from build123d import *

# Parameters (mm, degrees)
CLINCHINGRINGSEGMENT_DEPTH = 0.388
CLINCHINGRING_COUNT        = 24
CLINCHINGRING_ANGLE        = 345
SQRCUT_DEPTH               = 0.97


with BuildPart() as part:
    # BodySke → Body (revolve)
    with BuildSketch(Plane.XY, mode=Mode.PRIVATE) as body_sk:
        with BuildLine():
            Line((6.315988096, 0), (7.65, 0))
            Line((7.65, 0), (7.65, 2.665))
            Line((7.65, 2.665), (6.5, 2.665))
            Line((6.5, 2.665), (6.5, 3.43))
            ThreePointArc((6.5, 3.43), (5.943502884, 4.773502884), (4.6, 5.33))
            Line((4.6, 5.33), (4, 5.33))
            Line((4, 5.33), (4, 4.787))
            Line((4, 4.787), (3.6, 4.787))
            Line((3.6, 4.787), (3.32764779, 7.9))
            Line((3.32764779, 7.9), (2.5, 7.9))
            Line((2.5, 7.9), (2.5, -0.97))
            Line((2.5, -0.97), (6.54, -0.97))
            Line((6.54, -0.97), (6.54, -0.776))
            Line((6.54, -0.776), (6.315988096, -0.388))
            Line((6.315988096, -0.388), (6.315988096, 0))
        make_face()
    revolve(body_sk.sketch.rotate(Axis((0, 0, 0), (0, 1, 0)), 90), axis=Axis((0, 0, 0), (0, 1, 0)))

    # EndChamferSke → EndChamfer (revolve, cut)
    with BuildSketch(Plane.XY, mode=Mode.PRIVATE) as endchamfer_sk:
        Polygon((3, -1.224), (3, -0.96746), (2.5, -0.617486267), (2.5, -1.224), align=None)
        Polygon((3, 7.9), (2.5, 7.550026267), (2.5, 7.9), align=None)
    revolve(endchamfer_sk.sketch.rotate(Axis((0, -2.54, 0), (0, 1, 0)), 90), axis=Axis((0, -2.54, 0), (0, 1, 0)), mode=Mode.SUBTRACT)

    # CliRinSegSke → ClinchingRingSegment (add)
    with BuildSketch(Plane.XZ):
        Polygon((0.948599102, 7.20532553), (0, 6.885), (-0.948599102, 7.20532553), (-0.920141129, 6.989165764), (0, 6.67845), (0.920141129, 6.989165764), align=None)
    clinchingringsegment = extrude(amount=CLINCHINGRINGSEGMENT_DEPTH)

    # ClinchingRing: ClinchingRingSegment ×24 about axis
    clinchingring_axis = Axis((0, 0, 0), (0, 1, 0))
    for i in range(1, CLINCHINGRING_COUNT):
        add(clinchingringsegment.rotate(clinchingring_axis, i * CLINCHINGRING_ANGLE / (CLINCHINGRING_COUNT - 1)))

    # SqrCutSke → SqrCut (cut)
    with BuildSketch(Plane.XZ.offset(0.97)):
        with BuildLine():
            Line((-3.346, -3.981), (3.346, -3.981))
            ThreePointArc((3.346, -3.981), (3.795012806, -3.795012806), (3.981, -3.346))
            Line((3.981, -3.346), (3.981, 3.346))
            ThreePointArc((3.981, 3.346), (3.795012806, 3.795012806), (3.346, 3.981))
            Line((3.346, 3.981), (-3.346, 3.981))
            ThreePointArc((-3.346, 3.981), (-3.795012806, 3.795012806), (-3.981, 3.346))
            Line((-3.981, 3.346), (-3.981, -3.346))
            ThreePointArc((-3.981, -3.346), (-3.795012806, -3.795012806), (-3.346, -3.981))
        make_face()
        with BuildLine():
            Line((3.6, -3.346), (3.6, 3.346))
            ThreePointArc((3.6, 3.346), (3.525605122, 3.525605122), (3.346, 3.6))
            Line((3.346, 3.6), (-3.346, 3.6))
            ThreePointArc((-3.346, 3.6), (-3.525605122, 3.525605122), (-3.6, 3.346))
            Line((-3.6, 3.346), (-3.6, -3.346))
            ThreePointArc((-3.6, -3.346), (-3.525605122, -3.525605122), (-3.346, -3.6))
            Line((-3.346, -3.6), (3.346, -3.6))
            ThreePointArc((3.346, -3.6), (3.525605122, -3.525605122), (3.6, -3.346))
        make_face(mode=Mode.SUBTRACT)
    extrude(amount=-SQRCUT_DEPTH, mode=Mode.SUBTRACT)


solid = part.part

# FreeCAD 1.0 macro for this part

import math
import FreeCAD as App
import Part
import Sketcher

V = App.Vector
Q = App.Units.Quantity

doc = App.newDocument("Part")
params = doc.addObject("Spreadsheet::Sheet", "Params")
for row, (alias, value) in enumerate([
    ("sketch1_radius", "1.9 mm"),
    ("sketch1_width", "0.6 mm"),
    ("sketch1_width2", "0.4 mm"),
    ("sketch1_width3", "1.15 mm"),
    ("sketch1_width4", "4.04 mm"),
    ("revolution_angle", "360 deg"),
    ("sketch2_width", "0.5 mm"),
    ("groove_angle", "360 deg"),
    ("pad1_length", "0.388 mm"),
    ("pocket1_length", "0.97 mm"),
], start=1):
    params.set(f"A{row}", alias)
    params.set(f"B{row}", "=" + value)
    params.setAlias(f"B{row}", alias)

body = doc.addObject("PartDesign::Body", "Body")

sketch1 = body.newObject("Sketcher::SketchObject", "Sketch")
sketch1.AttachmentSupport = (doc.getObject("XY_Plane"), [""])
sketch1.MapMode = "FlatFace"
sketch1.addGeometry(Part.LineSegment(V(6.32, 0, 0), V(7.65, 0, 0)), False)
sketch1.addGeometry(Part.LineSegment(V(7.65, 0, 0), V(7.65, 2.67, 0)), False)
sketch1.addGeometry(Part.LineSegment(V(7.65, 2.67, 0), V(6.5, 2.67, 0)), False)
sketch1.addGeometry(Part.LineSegment(V(6.5, 2.67, 0), V(6.5, 3.43, 0)), False)
sketch1.addGeometry(Part.ArcOfCircle(Part.Circle(V(4.6, 3.43, 0), V(0, 0, 1), 1.9), math.radians(0), math.radians(90)), False)
sketch1.addGeometry(Part.LineSegment(V(4.6, 5.33, 0), V(4, 5.33, 0)), False)
sketch1.addGeometry(Part.LineSegment(V(4, 5.33, 0), V(4, 4.79, 0)), False)
sketch1.addGeometry(Part.LineSegment(V(4, 4.79, 0), V(3.6, 4.79, 0)), False)
sketch1.addGeometry(Part.LineSegment(V(3.6, 4.79, 0), V(3.33, 7.9, 0)), False)
sketch1.addGeometry(Part.LineSegment(V(3.33, 7.9, 0), V(2.5, 7.9, 0)), False)
sketch1.addGeometry(Part.LineSegment(V(2.5, 7.9, 0), V(2.5, -0.97, 0)), False)
sketch1.addGeometry(Part.LineSegment(V(2.5, -0.97, 0), V(6.54, -0.97, 0)), False)
sketch1.addGeometry(Part.LineSegment(V(6.54, -0.97, 0), V(6.54, -0.78, 0)), False)
sketch1.addGeometry(Part.LineSegment(V(6.54, -0.78, 0), V(6.32, -0.39, 0)), False)
sketch1.addGeometry(Part.LineSegment(V(6.32, -0.39, 0), V(6.32, 0, 0)), False)
sketch1.addConstraint(Sketcher.Constraint("Coincident", 0, 2, 1, 1))
sketch1.addConstraint(Sketcher.Constraint("Coincident", 1, 2, 2, 1))
sketch1.addConstraint(Sketcher.Constraint("Coincident", 2, 2, 3, 1))
sketch1.addConstraint(Sketcher.Constraint("Tangent", 3, 2, 4, 1))
sketch1.addConstraint(Sketcher.Constraint("Tangent", 4, 2, 5, 1))
sketch1.addConstraint(Sketcher.Constraint("Coincident", 5, 2, 6, 1))
sketch1.addConstraint(Sketcher.Constraint("Coincident", 6, 2, 7, 1))
sketch1.addConstraint(Sketcher.Constraint("Coincident", 7, 2, 8, 1))
sketch1.addConstraint(Sketcher.Constraint("Coincident", 8, 2, 9, 1))
sketch1.addConstraint(Sketcher.Constraint("Coincident", 9, 2, 10, 1))
sketch1.addConstraint(Sketcher.Constraint("Coincident", 10, 2, 11, 1))
sketch1.addConstraint(Sketcher.Constraint("Coincident", 11, 2, 12, 1))
sketch1.addConstraint(Sketcher.Constraint("Coincident", 12, 2, 13, 1))
sketch1.addConstraint(Sketcher.Constraint("Coincident", 13, 2, 14, 1))
sketch1.addConstraint(Sketcher.Constraint("Coincident", 14, 2, 0, 1))
sketch1.addConstraint(Sketcher.Constraint("Horizontal", 0))
sketch1.addConstraint(Sketcher.Constraint("Vertical", 1))
sketch1.addConstraint(Sketcher.Constraint("Horizontal", 2))
sketch1.addConstraint(Sketcher.Constraint("Vertical", 3))
sketch1.addConstraint(Sketcher.Constraint("Horizontal", 5))
sketch1.addConstraint(Sketcher.Constraint("Vertical", 6))
sketch1.addConstraint(Sketcher.Constraint("Horizontal", 7))
sketch1.addConstraint(Sketcher.Constraint("Horizontal", 9))
sketch1.addConstraint(Sketcher.Constraint("Vertical", 10))
sketch1.addConstraint(Sketcher.Constraint("Horizontal", 11))
sketch1.addConstraint(Sketcher.Constraint("Vertical", 12))
sketch1.addConstraint(Sketcher.Constraint("Vertical", 14))
sketch1.addConstraint(Sketcher.Constraint("PointOnObject", 0, 2, -1))
sketch1.addConstraint(Sketcher.Constraint("Radius", 4, Q("1.9 mm")))
sketch1.addConstraint(Sketcher.Constraint("Angle", 8, Q("95 deg")))
sketch1.addConstraint(Sketcher.Constraint("Angle", 13, Q("120 deg")))
sketch1.addConstraint(Sketcher.Constraint("DistanceX", 5, 2, 5, 1, Q("0.6 mm")))
sketch1.addConstraint(Sketcher.Constraint("DistanceX", 7, 2, 7, 1, Q("0.4 mm")))
sketch1.addConstraint(Sketcher.Constraint("DistanceX", -1, 1, 5, 2, Q("4 mm")))
sketch1.addConstraint(Sketcher.Constraint("DistanceX", 10, 2, 2, 2, Q("4 mm")))
sketch1.addConstraint(Sketcher.Constraint("DistanceX", 2, 2, 2, 1, Q("1.15 mm")))
sketch1.addConstraint(Sketcher.Constraint("DistanceX", 11, 1, 11, 2, Q("4.04 mm")))
sketch1.addConstraint(Sketcher.Constraint("DistanceY", 10, 2, 10, 1, Q("8.87 mm")))
sketch1.addConstraint(Sketcher.Constraint("DistanceY", -1, 1, 8, 2, Q("7.9 mm")))
sketch1.addConstraint(Sketcher.Constraint("DistanceY", 10, 2, 4, 3, Q("4.4 mm")))
sketch1.addConstraint(Sketcher.Constraint("DistanceY", 1, 1, 1, 2, Q("2.665 mm")))
sketch1.addConstraint(Sketcher.Constraint("DistanceY", 6, 2, 6, 1, Q("0.543 mm")))
sketch1.addConstraint(Sketcher.Constraint("DistanceY", 12, 1, 12, 2, Q("0.194 mm")))
sketch1.addConstraint(Sketcher.Constraint("DistanceY", 14, 1, 14, 2, Q("0.388 mm")))
sketch1.setExpression("Constraints[28]", "Params.sketch1_radius")
sketch1.setExpression("Constraints[31]", "Params.sketch1_width")
sketch1.setExpression("Constraints[32]", "Params.sketch1_width2")
sketch1.setExpression("Constraints[35]", "Params.sketch1_width3")
sketch1.setExpression("Constraints[36]", "Params.sketch1_width4")
revolution = body.newObject("PartDesign::Revolution", "Revolution")
revolution.Profile = sketch1
revolution.ReferenceAxis = (sketch1, ["V_Axis"])
revolution.setExpression("Angle", "Params.revolution_angle")

sketch2 = body.newObject("Sketcher::SketchObject", "Sketch001")
sketch2.AttachmentSupport = (doc.getObject("XY_Plane"), [""])
sketch2.MapMode = "FlatFace"
sketch2.addGeometry(Part.LineSegment(V(3, -1.22, 0), V(3, -0.97, 0)), False)
sketch2.addGeometry(Part.LineSegment(V(3, -0.97, 0), V(2.5, -0.62, 0)), False)
sketch2.addGeometry(Part.LineSegment(V(2.5, -0.62, 0), V(2.5, -1.22, 0)), False)
sketch2.addGeometry(Part.LineSegment(V(2.5, -1.22, 0), V(3, -1.22, 0)), False)
sketch2.addGeometry(Part.LineSegment(V(2.5, 7.55, 0), V(3, 7.9, 0)), False)
sketch2.addGeometry(Part.LineSegment(V(3, 7.9, 0), V(2.5, 7.9, 0)), False)
sketch2.addGeometry(Part.LineSegment(V(2.5, 7.9, 0), V(2.5, 7.55, 0)), False)
sketch2.addConstraint(Sketcher.Constraint("Coincident", 0, 2, 1, 1))
sketch2.addConstraint(Sketcher.Constraint("Coincident", 1, 2, 2, 1))
sketch2.addConstraint(Sketcher.Constraint("Coincident", 2, 2, 3, 1))
sketch2.addConstraint(Sketcher.Constraint("Coincident", 3, 2, 0, 1))
sketch2.addConstraint(Sketcher.Constraint("Coincident", 4, 2, 5, 1))
sketch2.addConstraint(Sketcher.Constraint("Coincident", 5, 2, 6, 1))
sketch2.addConstraint(Sketcher.Constraint("Coincident", 6, 2, 4, 1))
sketch2.addConstraint(Sketcher.Constraint("Vertical", 0))
sketch2.addConstraint(Sketcher.Constraint("Vertical", 2))
sketch2.addConstraint(Sketcher.Constraint("Horizontal", 3))
sketch2.addConstraint(Sketcher.Constraint("Horizontal", 5))
sketch2.addConstraint(Sketcher.Constraint("Vertical", 6))
sketch2.addConstraint(Sketcher.Constraint("Vertical", 3, 2, 4, 2))
sketch2.addConstraint(Sketcher.Constraint("Vertical", 2, 2, 5, 2))
sketch2.addConstraint(Sketcher.Constraint("Equal", 1, 4))
sketch2.addConstraint(Sketcher.Constraint("DistanceX", 3, 1, 3, 2, Q("0.5 mm")))
sketch2.addConstraint(Sketcher.Constraint("DistanceX", -1, 1, 0, 2, Q("3 mm")))
sketch2.addConstraint(Sketcher.Constraint("DistanceY", -1, 1, 4, 2, Q("7.9 mm")))
sketch2.addConstraint(Sketcher.Constraint("Angle", 1, Q("145.01 deg")))
sketch2.addConstraint(Sketcher.Constraint("DistanceY", 2, 2, -1, 1, Q("1.224 mm")))
sketch2.addConstraint(Sketcher.Constraint("DistanceY", 0, 1, 0, 2, Q("0.25654 mm")))
sketch2.setExpression("Constraints[15]", "Params.sketch2_width")
groove = body.newObject("PartDesign::Groove", "Groove")
groove.Profile = sketch2
groove.ReferenceAxis = (sketch2, ["V_Axis"])
groove.setExpression("Angle", "Params.groove_angle")

sketch3 = body.newObject("Sketcher::SketchObject", "Sketch002")
sketch3.AttachmentSupport = (doc.getObject("XZ_Plane"), [""])
sketch3.MapMode = "FlatFace"
sketch3.addGeometry(Part.LineSegment(V(0.95, 7.21, 0), V(0, 6.88, 0)), False)
sketch3.addGeometry(Part.LineSegment(V(0, 6.88, 0), V(-0.95, 7.21, 0)), False)
sketch3.addGeometry(Part.LineSegment(V(-0.95, 7.21, 0), V(-0.92, 6.99, 0)), False)
sketch3.addGeometry(Part.LineSegment(V(-0.92, 6.99, 0), V(0, 6.68, 0)), False)
sketch3.addGeometry(Part.LineSegment(V(0, 6.68, 0), V(0.92, 6.99, 0)), False)
sketch3.addGeometry(Part.LineSegment(V(0.92, 6.99, 0), V(0.95, 7.21, 0)), False)
sketch3.addConstraint(Sketcher.Constraint("Coincident", 0, 2, 1, 1))
sketch3.addConstraint(Sketcher.Constraint("Coincident", 1, 2, 2, 1))
sketch3.addConstraint(Sketcher.Constraint("Coincident", 2, 2, 3, 1))
sketch3.addConstraint(Sketcher.Constraint("Coincident", 3, 2, 4, 1))
sketch3.addConstraint(Sketcher.Constraint("Coincident", 4, 2, 5, 1))
sketch3.addConstraint(Sketcher.Constraint("Coincident", 5, 2, 0, 1))
sketch3.addConstraint(Sketcher.Constraint("Symmetric", 2, 2, 4, 2, -2))
sketch3.addConstraint(Sketcher.Constraint("Symmetric", 1, 2, 5, 2, -2))
sketch3.addConstraint(Sketcher.Constraint("PointOnObject", 0, 2, -2))
sketch3.addConstraint(Sketcher.Constraint("PointOnObject", 3, 2, -2))
sketch3.addConstraint(Sketcher.Constraint("Parallel", 1, 3))
sketch3.addConstraint(Sketcher.Constraint("Angle", 2, Q("-82.5 deg")))
sketch3.addConstraint(Sketcher.Constraint("DistanceY", -1, 1, 0, 2, Q("6.885 mm")))
sketch3.addConstraint(Sketcher.Constraint("DistanceX", 1, 2, -1, 1, Q("0.948599 mm")))
sketch3.addConstraint(Sketcher.Constraint("DistanceX", 2, 2, -1, 1, Q("0.920141 mm")))
sketch3.addConstraint(Sketcher.Constraint("DistanceY", -1, 1, 3, 2, Q("6.67845 mm")))
pad1 = body.newObject("PartDesign::Pad", "Pad")
pad1.Profile = sketch3
pad1.setExpression("Length", "Params.pad1_length")
doc.recompute()

polarpattern = body.newObject("PartDesign::PolarPattern", "PolarPattern")
polarpattern.Originals = [pad1]
polarpattern.Axis = (doc.getObject("Y_Axis"), [""])
polarpattern.Angle = 360
polarpattern.Occurrences = 24
body.Tip = polarpattern

sketch4 = body.newObject("Sketcher::SketchObject", "Sketch003")
sketch4.AttachmentSupport = (doc.getObject("XZ_Plane"), [""])
sketch4.MapMode = "FlatFace"
sketch4.AttachmentOffset = App.Placement(V(0, 0, 0.97), App.Rotation())
sketch4.addGeometry(Part.LineSegment(V(-3.35, -3.98, 0), V(3.35, -3.98, 0)), False)
sketch4.addGeometry(Part.ArcOfCircle(Part.Circle(V(3.35, -3.35, 0), V(0, 0, 1), 0.64), math.radians(-90), math.radians(0)), False)
sketch4.addGeometry(Part.LineSegment(V(3.98, -3.35, 0), V(3.98, 3.35, 0)), False)
sketch4.addGeometry(Part.ArcOfCircle(Part.Circle(V(3.35, 3.35, 0), V(0, 0, 1), 0.64), math.radians(0), math.radians(90)), False)
sketch4.addGeometry(Part.LineSegment(V(3.35, 3.98, 0), V(-3.35, 3.98, 0)), False)
sketch4.addGeometry(Part.ArcOfCircle(Part.Circle(V(-3.35, 3.35, 0), V(0, 0, 1), 0.64), math.radians(90), math.radians(180)), False)
sketch4.addGeometry(Part.LineSegment(V(-3.98, 3.35, 0), V(-3.98, -3.35, 0)), False)
sketch4.addGeometry(Part.ArcOfCircle(Part.Circle(V(-3.35, -3.35, 0), V(0, 0, 1), 0.64), math.radians(180), math.radians(270)), False)
sketch4.addGeometry(Part.LineSegment(V(3.6, 3.35, 0), V(3.6, -3.35, 0)), False)
sketch4.addGeometry(Part.ArcOfCircle(Part.Circle(V(3.35, -3.35, 0), V(0, 0, 1), 0.25), math.radians(-90), math.radians(0)), False)
sketch4.addGeometry(Part.LineSegment(V(3.35, -3.6, 0), V(-3.35, -3.6, 0)), False)
sketch4.addGeometry(Part.ArcOfCircle(Part.Circle(V(-3.35, -3.35, 0), V(0, 0, 1), 0.25), math.radians(-180), math.radians(-90)), False)
sketch4.addGeometry(Part.LineSegment(V(-3.6, -3.35, 0), V(-3.6, 3.35, 0)), False)
sketch4.addGeometry(Part.ArcOfCircle(Part.Circle(V(-3.35, 3.35, 0), V(0, 0, 1), 0.25), math.radians(90), math.radians(180)), False)
sketch4.addGeometry(Part.LineSegment(V(-3.35, 3.6, 0), V(3.35, 3.6, 0)), False)
sketch4.addGeometry(Part.ArcOfCircle(Part.Circle(V(3.35, 3.35, 0), V(0, 0, 1), 0.25), math.radians(0), math.radians(90)), False)
sketch4.addConstraint(Sketcher.Constraint("Tangent", 0, 2, 1, 1))
sketch4.addConstraint(Sketcher.Constraint("Tangent", 1, 2, 2, 1))
sketch4.addConstraint(Sketcher.Constraint("Tangent", 2, 2, 3, 1))
sketch4.addConstraint(Sketcher.Constraint("Tangent", 3, 2, 4, 1))
sketch4.addConstraint(Sketcher.Constraint("Tangent", 4, 2, 5, 1))
sketch4.addConstraint(Sketcher.Constraint("Tangent", 5, 2, 6, 1))
sketch4.addConstraint(Sketcher.Constraint("Tangent", 6, 2, 7, 1))
sketch4.addConstraint(Sketcher.Constraint("Tangent", 7, 2, 0, 1))
sketch4.addConstraint(Sketcher.Constraint("Tangent", 8, 2, 9, 2))
sketch4.addConstraint(Sketcher.Constraint("Tangent", 9, 1, 10, 1))
sketch4.addConstraint(Sketcher.Constraint("Tangent", 10, 2, 11, 2))
sketch4.addConstraint(Sketcher.Constraint("Tangent", 11, 1, 12, 1))
sketch4.addConstraint(Sketcher.Constraint("Tangent", 12, 2, 13, 2))
sketch4.addConstraint(Sketcher.Constraint("Tangent", 13, 1, 14, 1))
sketch4.addConstraint(Sketcher.Constraint("Tangent", 14, 2, 15, 2))
sketch4.addConstraint(Sketcher.Constraint("Tangent", 15, 1, 8, 1))
sketch4.addConstraint(Sketcher.Constraint("Horizontal", 0))
sketch4.addConstraint(Sketcher.Constraint("Vertical", 2))
sketch4.addConstraint(Sketcher.Constraint("Horizontal", 4))
sketch4.addConstraint(Sketcher.Constraint("Vertical", 6))
sketch4.addConstraint(Sketcher.Constraint("Vertical", 8))
sketch4.addConstraint(Sketcher.Constraint("Horizontal", 10))
sketch4.addConstraint(Sketcher.Constraint("Vertical", 12))
sketch4.addConstraint(Sketcher.Constraint("Horizontal", 14))
sketch4.addConstraint(Sketcher.Constraint("Coincident", 9, 3, 1, 3))
sketch4.addConstraint(Sketcher.Constraint("Coincident", 11, 3, 7, 3))
sketch4.addConstraint(Sketcher.Constraint("Coincident", 13, 3, 5, 3))
sketch4.addConstraint(Sketcher.Constraint("Equal", 1, 3))
sketch4.addConstraint(Sketcher.Constraint("Equal", 3, 5))
sketch4.addConstraint(Sketcher.Constraint("Equal", 5, 7))
sketch4.addConstraint(Sketcher.Constraint("Equal", 13, 15))
sketch4.addConstraint(Sketcher.Constraint("Symmetric", 1, 3, 5, 3, -1, 1))
sketch4.addConstraint(Sketcher.Constraint("Equal", 14, 2))
sketch4.addConstraint(Sketcher.Constraint("Radius", 1, Q("0.635 mm")))
sketch4.addConstraint(Sketcher.Constraint("Radius", 9, Q("0.254 mm")))
sketch4.addConstraint(Sketcher.Constraint("DistanceX", -1, 1, 8, 2, Q("3.6 mm")))
pocket1 = body.newObject("PartDesign::Pocket", "Pocket")
pocket1.Profile = sketch4
pocket1.setExpression("Length", "Params.pocket1_length")

doc.recompute()
